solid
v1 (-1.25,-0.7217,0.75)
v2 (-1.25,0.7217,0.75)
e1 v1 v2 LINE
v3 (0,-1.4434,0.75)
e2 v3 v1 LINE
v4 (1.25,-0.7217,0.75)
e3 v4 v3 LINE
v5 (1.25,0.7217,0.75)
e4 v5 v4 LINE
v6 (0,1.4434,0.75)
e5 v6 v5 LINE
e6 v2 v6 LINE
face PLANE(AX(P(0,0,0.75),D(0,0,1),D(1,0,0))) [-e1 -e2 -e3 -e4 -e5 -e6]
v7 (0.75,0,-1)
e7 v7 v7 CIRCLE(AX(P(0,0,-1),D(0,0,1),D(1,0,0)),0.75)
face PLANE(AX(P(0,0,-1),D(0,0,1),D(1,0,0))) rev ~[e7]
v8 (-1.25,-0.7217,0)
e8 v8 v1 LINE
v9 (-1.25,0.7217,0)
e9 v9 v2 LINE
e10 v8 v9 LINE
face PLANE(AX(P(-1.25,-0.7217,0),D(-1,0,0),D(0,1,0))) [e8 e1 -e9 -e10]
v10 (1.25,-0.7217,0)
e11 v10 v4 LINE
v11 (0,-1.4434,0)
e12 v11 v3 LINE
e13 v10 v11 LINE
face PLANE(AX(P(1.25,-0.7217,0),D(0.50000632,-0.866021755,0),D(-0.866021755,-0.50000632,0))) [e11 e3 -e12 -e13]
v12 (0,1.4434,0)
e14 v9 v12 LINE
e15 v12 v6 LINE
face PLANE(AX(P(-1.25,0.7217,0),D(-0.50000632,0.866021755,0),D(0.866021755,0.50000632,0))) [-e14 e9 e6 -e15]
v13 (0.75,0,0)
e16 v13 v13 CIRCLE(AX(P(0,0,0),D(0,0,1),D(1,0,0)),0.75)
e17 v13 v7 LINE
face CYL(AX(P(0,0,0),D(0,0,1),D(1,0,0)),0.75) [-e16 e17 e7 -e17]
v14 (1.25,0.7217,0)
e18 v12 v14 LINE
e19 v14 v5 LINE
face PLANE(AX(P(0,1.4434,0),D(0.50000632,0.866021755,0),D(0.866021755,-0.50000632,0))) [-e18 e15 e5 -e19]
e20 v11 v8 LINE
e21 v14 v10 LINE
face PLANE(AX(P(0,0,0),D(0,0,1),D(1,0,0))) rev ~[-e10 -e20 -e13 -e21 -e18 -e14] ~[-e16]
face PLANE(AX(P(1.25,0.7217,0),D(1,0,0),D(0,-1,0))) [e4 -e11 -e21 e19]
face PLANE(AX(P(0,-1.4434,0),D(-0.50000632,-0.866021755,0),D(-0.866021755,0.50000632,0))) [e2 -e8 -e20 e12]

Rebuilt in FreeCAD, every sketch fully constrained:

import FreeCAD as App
import Part
import Sketcher

V = App.Vector
Q = App.Units.Quantity

doc = App.newDocument("Part")
body = doc.addObject("PartDesign::Body", "Body")

# Sketch on XY plane
sketch1 = body.newObject("Sketcher::SketchObject", "Sketch")
sketch1.AttachmentSupport = (doc.getObject("XY_Plane"), [""])
sketch1.MapMode = "FlatFace"
sketch1.addGeometry(Part.Circle(V(0, 0, 0), V(0, 0, 1), 0.75), False)
sketch1.addConstraint(Sketcher.Constraint("Coincident", 0, 3, -1, 1))
sketch1.addConstraint(Sketcher.Constraint("Diameter", 0, Q("1.5 mm")))
pad1 = body.newObject("PartDesign::Pad", "Pad")
pad1.Profile = sketch1
pad1.Length = 1
pad1.Reversed = True

# Sketch on XY plane
sketch2 = body.newObject("Sketcher::SketchObject", "Sketch001")
sketch2.AttachmentSupport = (doc.getObject("XY_Plane"), [""])
sketch2.MapMode = "FlatFace"
sketch2.addGeometry(Part.LineSegment(V(1.25, 0.7217, 0), V(0, 1.4434, 0)), False)
sketch2.addGeometry(Part.LineSegment(V(0, 1.4434, 0), V(-1.25, 0.7217, 0)), False)
sketch2.addGeometry(Part.LineSegment(V(-1.25, 0.7217, 0), V(-1.25, -0.7217, 0)), False)
sketch2.addGeometry(Part.LineSegment(V(-1.25, -0.7217, 0), V(0, -1.4434, 0)), False)
sketch2.addGeometry(Part.LineSegment(V(0, -1.4434, 0), V(1.25, -0.7217, 0)), False)
sketch2.addGeometry(Part.LineSegment(V(1.25, -0.7217, 0), V(1.25, 0.7217, 0)), False)
sketch2.addConstraint(Sketcher.Constraint("Coincident", 0, 2, 1, 1))
sketch2.addConstraint(Sketcher.Constraint("Coincident", 1, 2, 2, 1))
sketch2.addConstraint(Sketcher.Constraint("Coincident", 2, 2, 3, 1))
sketch2.addConstraint(Sketcher.Constraint("Coincident", 3, 2, 4, 1))
sketch2.addConstraint(Sketcher.Constraint("Coincident", 4, 2, 5, 1))
sketch2.addConstraint(Sketcher.Constraint("Coincident", 5, 2, 0, 1))
sketch2.addConstraint(Sketcher.Constraint("Vertical", 2))
sketch2.addConstraint(Sketcher.Constraint("Vertical", 5))
sketch2.addConstraint(Sketcher.Constraint("Symmetric", 0, 2, 3, 2, -1, 1))
sketch2.addConstraint(Sketcher.Constraint("Symmetric", 1, 2, 4, 2, -1, 1))
sketch2.addConstraint(Sketcher.Constraint("PointOnObject", 0, 2, -2))
sketch2.addConstraint(Sketcher.Constraint("Parallel", 0, 3))
sketch2.addConstraint(Sketcher.Constraint("Horizontal", 2, 2, 4, 2))
sketch2.addConstraint(Sketcher.Constraint("DistanceX", 2, 2, 4, 2, Q("2.5 mm")))
sketch2.addConstraint(Sketcher.Constraint("Angle", 0, Q("149.9996 deg")))
sketch2.addConstraint(Sketcher.Constraint("DistanceY", 2, 2, 2, 1, Q("1.4434 mm")))
pad2 = body.newObject("PartDesign::Pad", "Pad001")
pad2.Profile = sketch2
pad2.Length = 0.75

doc.recompute()
